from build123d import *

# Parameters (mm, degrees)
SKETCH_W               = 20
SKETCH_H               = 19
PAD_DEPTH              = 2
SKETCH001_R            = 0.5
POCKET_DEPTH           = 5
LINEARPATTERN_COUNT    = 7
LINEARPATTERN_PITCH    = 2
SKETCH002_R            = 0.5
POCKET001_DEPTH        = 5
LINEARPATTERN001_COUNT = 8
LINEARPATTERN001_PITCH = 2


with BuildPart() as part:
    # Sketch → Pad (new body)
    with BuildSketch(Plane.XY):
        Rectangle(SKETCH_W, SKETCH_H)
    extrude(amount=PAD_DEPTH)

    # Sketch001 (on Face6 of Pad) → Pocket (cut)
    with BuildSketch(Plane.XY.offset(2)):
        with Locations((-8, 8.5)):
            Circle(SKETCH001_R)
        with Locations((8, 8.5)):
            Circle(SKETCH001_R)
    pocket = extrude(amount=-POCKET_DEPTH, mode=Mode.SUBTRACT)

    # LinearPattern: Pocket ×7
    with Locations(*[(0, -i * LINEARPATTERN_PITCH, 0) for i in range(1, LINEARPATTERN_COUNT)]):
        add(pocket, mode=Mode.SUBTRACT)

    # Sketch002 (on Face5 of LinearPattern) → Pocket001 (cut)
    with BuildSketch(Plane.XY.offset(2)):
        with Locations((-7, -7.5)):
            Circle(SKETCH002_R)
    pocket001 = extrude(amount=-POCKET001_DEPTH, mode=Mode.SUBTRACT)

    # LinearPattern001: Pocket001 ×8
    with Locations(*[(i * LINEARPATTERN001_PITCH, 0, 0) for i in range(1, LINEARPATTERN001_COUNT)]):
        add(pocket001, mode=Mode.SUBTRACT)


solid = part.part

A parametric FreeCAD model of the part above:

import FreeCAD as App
import Part
import Sketcher

V = App.Vector
Q = App.Units.Quantity

doc = App.newDocument("Part")
params = doc.addObject("Spreadsheet::Sheet", "Params")
for row, (alias, value) in enumerate([
    ("sketch1_width", "20 mm"),
    ("sketch1_height", "19 mm"),
    ("pad1_length", "2 mm"),
    ("sketch2_diameter", "1 mm"),
    ("pocket1_length", "5 mm"),
    ("linearpattern_pitch", "2 mm"),
    ("sketch3_diameter", "1 mm"),
    ("pocket2_length", "5 mm"),
    ("linearpattern2_pitch", "2 mm"),
], start=1):
    params.set(f"A{row}", alias)
    params.set(f"B{row}", "=" + value)
    params.setAlias(f"B{row}", alias)

body = doc.addObject("PartDesign::Body", "Body")

sketch1 = body.newObject("Sketcher::SketchObject", "Sketch")
sketch1.AttachmentSupport = (doc.getObject("XY_Plane"), [""])
sketch1.MapMode = "FlatFace"
sketch1.addGeometry(Part.LineSegment(V(-10, 10, 0), V(-10, -10, 0)), False)
sketch1.addGeometry(Part.LineSegment(V(-10, -10, 0), V(10, -10, 0)), False)
sketch1.addGeometry(Part.LineSegment(V(10, -10, 0), V(10, 10, 0)), False)
sketch1.addGeometry(Part.LineSegment(V(10, 10, 0), V(-10, 10, 0)), False)
sketch1.addConstraint(Sketcher.Constraint("Coincident", 0, 2, 1, 1))
sketch1.addConstraint(Sketcher.Constraint("Coincident", 1, 2, 2, 1))
sketch1.addConstraint(Sketcher.Constraint("Coincident", 2, 2, 3, 1))
sketch1.addConstraint(Sketcher.Constraint("Coincident", 3, 2, 0, 1))
sketch1.addConstraint(Sketcher.Constraint("Vertical", 0))
sketch1.addConstraint(Sketcher.Constraint("Horizontal", 1))
sketch1.addConstraint(Sketcher.Constraint("Vertical", 2))
sketch1.addConstraint(Sketcher.Constraint("Horizontal", 3))
sketch1.addConstraint(Sketcher.Constraint("Symmetric", 0, 2, 2, 2, -1, 1))
sketch1.addConstraint(Sketcher.Constraint("DistanceX", 1, 1, 1, 2, Q("20 mm")))
sketch1.addConstraint(Sketcher.Constraint("DistanceY", 0, 2, 0, 1, Q("19 mm")))
sketch1.setExpression("Constraints[9]", "Params.sketch1_width")
sketch1.setExpression("Constraints[10]", "Params.sketch1_height")
pad1 = body.newObject("PartDesign::Pad", "Pad")
pad1.Profile = sketch1
pad1.setExpression("Length", "Params.pad1_length")

sketch2 = body.newObject("Sketcher::SketchObject", "Sketch001")
sketch2.AttachmentSupport = (doc.getObject("XY_Plane"), [""])
sketch2.MapMode = "FlatFace"
sketch2.AttachmentOffset = App.Placement(V(0, 0, 2), App.Rotation())
sketch2.addGeometry(Part.Circle(V(-8, 8.5, 0), V(0, 0, 1), 0.5), False)
sketch2.addGeometry(Part.Circle(V(8, 8.5, 0), V(0, 0, 1), 0.5), False)
sketch2.addConstraint(Sketcher.Constraint("Equal", 0, 1))
sketch2.addConstraint(Sketcher.Constraint("Symmetric", 0, 3, 1, 3, -2))
sketch2.addConstraint(Sketcher.Constraint("Diameter", 0, Q("1 mm")))
sketch2.addConstraint(Sketcher.Constraint("DistanceX", 0, 3, -1, 1, Q("8 mm")))
sketch2.addConstraint(Sketcher.Constraint("DistanceY", -1, 1, 0, 3, Q("8.5 mm")))
sketch2.setExpression("Constraints[2]", "Params.sketch2_diameter")
pocket1 = body.newObject("PartDesign::Pocket", "Pocket")
pocket1.Profile = sketch2
pocket1.setExpression("Length", "Params.pocket1_length")
doc.recompute()

linearpattern = body.newObject("PartDesign::LinearPattern", "LinearPattern")
linearpattern.Originals = [pocket1]
linearpattern.Direction = (doc.getObject("Y_Axis"), [""])
linearpattern.Mode = "offset"
linearpattern.setExpression("Offset", "Params.linearpattern_pitch")
linearpattern.Occurrences = 7
linearpattern.Reversed = True
body.Tip = linearpattern

sketch3 = body.newObject("Sketcher::SketchObject", "Sketch002")
sketch3.AttachmentSupport = (doc.getObject("XY_Plane"), [""])
sketch3.MapMode = "FlatFace"
sketch3.AttachmentOffset = App.Placement(V(0, 0, 2), App.Rotation())
sketch3.addGeometry(Part.Circle(V(-7, -7.5, 0), V(0, 0, 1), 0.5), False)
sketch3.addConstraint(Sketcher.Constraint("Diameter", 0, Q("1 mm")))
sketch3.addConstraint(Sketcher.Constraint("DistanceX", 0, 3, -1, 1, Q("7 mm")))
sketch3.addConstraint(Sketcher.Constraint("DistanceY", 0, 3, -1, 1, Q("7.5 mm")))
sketch3.setExpression("Constraints[0]", "Params.sketch3_diameter")
pocket2 = body.newObject("PartDesign::Pocket", "Pocket001")
pocket2.Profile = sketch3
pocket2.setExpression("Length", "Params.pocket2_length")
doc.recompute()

linearpattern2 = body.newObject("PartDesign::LinearPattern", "LinearPattern001")
linearpattern2.Originals = [pocket2]
linearpattern2.Direction = (doc.getObject("X_Axis"), [""])
linearpattern2.Mode = "offset"
linearpattern2.setExpression("Offset", "Params.linearpattern2_pitch")
linearpattern2.Occurrences = 8
body.Tip = linearpattern2

doc.recompute()
